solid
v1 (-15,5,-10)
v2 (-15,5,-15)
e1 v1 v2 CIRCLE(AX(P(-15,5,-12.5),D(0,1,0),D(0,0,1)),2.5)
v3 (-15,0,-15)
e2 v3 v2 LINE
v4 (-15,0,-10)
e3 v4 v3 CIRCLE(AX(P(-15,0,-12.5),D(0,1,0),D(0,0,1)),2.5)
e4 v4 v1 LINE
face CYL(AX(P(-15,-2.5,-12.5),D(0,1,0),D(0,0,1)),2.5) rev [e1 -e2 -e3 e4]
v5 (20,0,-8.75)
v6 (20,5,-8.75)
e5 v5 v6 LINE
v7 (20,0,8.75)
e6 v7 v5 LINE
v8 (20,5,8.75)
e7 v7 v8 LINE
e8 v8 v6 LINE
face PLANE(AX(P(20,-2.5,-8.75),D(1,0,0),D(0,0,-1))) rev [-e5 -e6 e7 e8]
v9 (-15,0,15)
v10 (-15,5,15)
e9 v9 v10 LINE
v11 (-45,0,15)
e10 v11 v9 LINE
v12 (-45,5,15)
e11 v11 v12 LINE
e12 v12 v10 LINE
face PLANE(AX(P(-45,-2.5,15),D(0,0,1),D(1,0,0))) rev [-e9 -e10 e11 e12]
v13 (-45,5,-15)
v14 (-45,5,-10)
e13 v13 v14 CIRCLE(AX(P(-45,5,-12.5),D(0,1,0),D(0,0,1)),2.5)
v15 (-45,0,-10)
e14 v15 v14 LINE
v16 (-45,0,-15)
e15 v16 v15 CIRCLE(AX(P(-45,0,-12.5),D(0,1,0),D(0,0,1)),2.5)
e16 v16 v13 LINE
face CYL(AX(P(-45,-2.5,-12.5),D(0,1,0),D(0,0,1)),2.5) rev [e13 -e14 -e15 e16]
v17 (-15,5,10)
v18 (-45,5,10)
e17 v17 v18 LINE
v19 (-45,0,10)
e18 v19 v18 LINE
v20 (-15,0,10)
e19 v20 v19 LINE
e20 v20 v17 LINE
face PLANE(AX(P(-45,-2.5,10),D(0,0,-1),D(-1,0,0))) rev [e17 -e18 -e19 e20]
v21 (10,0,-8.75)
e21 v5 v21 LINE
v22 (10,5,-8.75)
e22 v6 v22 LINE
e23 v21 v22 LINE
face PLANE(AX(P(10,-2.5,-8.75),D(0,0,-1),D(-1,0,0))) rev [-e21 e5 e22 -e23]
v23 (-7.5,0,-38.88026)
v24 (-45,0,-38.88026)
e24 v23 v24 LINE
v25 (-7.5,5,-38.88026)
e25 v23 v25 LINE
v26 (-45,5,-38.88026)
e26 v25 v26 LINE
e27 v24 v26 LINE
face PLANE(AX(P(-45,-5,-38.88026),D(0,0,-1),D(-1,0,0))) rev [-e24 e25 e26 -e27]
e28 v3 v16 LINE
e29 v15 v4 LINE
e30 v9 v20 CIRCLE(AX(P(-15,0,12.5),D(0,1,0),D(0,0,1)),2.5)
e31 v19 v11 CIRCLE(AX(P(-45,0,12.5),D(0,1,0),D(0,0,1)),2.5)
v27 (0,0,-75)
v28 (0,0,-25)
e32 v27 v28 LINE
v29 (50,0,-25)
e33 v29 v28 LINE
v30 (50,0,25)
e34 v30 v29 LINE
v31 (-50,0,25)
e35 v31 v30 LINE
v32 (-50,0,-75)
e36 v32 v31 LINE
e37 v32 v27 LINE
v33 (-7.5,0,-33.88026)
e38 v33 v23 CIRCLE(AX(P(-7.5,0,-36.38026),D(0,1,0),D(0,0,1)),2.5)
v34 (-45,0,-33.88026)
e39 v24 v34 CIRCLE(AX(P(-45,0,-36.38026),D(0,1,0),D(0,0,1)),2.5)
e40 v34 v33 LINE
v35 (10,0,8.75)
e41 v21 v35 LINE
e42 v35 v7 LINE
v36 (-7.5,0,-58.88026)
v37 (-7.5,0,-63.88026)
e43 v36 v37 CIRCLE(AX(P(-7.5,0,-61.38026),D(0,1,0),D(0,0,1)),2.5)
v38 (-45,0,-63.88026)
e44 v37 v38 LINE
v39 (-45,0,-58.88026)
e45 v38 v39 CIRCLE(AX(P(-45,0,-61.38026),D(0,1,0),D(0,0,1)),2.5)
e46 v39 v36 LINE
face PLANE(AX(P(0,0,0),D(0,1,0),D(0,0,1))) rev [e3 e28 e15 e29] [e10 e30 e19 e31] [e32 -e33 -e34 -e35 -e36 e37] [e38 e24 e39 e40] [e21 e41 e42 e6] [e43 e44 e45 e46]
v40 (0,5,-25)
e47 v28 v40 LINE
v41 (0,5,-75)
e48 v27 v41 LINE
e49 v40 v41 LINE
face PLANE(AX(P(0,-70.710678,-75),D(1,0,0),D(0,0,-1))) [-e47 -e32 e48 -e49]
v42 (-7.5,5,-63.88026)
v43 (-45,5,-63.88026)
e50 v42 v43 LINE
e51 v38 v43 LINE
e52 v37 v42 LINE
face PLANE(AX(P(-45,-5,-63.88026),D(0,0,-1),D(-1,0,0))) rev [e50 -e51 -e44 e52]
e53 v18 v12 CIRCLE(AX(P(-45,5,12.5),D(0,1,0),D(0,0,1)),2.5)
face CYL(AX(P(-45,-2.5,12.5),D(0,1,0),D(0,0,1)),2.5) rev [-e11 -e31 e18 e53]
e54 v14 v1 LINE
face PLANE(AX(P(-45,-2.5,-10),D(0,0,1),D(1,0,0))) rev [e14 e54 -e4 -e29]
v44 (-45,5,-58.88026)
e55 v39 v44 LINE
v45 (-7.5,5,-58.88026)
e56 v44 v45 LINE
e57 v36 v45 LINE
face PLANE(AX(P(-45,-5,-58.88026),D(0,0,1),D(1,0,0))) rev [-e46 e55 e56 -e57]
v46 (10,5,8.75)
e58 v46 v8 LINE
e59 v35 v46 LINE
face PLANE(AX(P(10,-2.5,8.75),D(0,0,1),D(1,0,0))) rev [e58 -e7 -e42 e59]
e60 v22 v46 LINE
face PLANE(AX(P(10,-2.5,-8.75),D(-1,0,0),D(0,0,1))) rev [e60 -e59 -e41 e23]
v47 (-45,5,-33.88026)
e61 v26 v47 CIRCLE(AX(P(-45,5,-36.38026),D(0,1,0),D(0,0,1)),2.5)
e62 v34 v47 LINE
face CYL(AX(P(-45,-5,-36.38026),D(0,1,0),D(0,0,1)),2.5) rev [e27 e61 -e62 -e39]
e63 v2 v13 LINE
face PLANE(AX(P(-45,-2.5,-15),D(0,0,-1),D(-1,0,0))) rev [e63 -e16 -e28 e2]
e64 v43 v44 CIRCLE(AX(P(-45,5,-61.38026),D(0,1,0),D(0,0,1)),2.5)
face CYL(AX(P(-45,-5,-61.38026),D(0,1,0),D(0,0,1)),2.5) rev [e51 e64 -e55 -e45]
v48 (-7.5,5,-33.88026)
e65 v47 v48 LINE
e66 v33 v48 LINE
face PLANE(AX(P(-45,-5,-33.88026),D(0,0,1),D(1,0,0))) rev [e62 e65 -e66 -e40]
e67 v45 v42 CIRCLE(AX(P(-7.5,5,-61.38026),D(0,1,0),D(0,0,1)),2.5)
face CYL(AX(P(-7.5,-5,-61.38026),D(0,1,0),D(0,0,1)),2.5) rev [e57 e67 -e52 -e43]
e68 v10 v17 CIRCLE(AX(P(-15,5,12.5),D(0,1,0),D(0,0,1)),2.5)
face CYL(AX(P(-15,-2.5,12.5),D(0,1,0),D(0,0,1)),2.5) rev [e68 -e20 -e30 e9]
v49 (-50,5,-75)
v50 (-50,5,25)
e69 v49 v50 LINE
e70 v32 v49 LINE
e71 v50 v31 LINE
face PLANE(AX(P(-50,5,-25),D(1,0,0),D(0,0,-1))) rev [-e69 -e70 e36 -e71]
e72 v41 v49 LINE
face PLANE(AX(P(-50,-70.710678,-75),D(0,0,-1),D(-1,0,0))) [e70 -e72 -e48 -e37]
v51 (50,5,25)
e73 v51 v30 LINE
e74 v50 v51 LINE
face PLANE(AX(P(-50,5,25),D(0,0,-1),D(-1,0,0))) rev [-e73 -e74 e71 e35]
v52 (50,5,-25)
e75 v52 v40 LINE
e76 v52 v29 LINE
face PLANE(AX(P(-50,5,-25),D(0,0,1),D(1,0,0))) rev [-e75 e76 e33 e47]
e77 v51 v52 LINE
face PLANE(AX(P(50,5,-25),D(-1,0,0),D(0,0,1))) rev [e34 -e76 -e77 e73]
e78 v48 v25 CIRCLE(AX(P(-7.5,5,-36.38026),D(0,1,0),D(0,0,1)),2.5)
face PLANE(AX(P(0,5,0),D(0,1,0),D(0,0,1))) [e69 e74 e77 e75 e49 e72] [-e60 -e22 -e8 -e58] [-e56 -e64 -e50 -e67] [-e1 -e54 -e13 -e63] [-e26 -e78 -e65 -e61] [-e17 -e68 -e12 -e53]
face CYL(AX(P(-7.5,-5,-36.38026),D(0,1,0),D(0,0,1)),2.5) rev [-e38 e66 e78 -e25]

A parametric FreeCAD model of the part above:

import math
import FreeCAD as App
import Part
import Sketcher

V = App.Vector

doc = App.newDocument("Part")
body = doc.addObject("PartDesign::Body", "Body")

# Sketch on XZ plane
sketch1 = body.newObject("Sketcher::SketchObject", "Sketch")
sketch1.AttachmentSupport = (doc.getObject("XZ_Plane"), [""])
sketch1.MapMode = "FlatFace"
sketch1.addGeometry(Part.LineSegment(V(-50, -25, 0), V(-50, 25, 0)), False)
sketch1.addGeometry(Part.LineSegment(V(-50, 25, 0), V(50, 25, 0)), False)
sketch1.addGeometry(Part.LineSegment(V(50, 25, 0), V(50, -25, 0)), False)
sketch1.addGeometry(Part.LineSegment(V(50, -25, 0), V(-50, -25, 0)), False)
sketch1.addConstraint(Sketcher.Constraint("Coincident", 0, 2, 1, 1))
sketch1.addConstraint(Sketcher.Constraint("Coincident", 1, 2, 2, 1))
sketch1.addConstraint(Sketcher.Constraint("Coincident", 2, 2, 3, 1))
sketch1.addConstraint(Sketcher.Constraint("Coincident", 3, 2, 0, 1))
sketch1.addConstraint(Sketcher.Constraint("Vertical", 0))
sketch1.addConstraint(Sketcher.Constraint("Horizontal", 1))
sketch1.addConstraint(Sketcher.Constraint("Vertical", 2))
sketch1.addConstraint(Sketcher.Constraint("Horizontal", 3))
sketch1.addConstraint(Sketcher.Constraint("Symmetric", 0, 2, 2, 2, -1, 1))
sketch1.addConstraint(Sketcher.Constraint("DistanceX", 1, 1, 1, 2, 100.0))
sketch1.addConstraint(Sketcher.Constraint("DistanceY", 0, 1, 0, 2, 50.0))
pad1 = body.newObject("PartDesign::Pad", "Pad")
pad1.Profile = sketch1
pad1.Length = 5
pad1.Reversed = True

# Sketch on XZ plane
sketch2 = body.newObject("Sketcher::SketchObject", "Sketch001")
sketch2.AttachmentSupport = (doc.getObject("XZ_Plane"), [""])
sketch2.MapMode = "FlatFace"
sketch2.AttachmentOffset = App.Placement(V(0, 0, -5), App.Rotation())
sketch2.addGeometry(Part.LineSegment(V(10, -8.75, 0), V(10, 8.75, 0)), False)
sketch2.addGeometry(Part.LineSegment(V(10, 8.75, 0), V(20, 8.75, 0)), False)
sketch2.addGeometry(Part.LineSegment(V(20, 8.75, 0), V(20, -8.75, 0)), False)
sketch2.addGeometry(Part.LineSegment(V(20, -8.75, 0), V(10, -8.75, 0)), False)
sketch2.addConstraint(Sketcher.Constraint("Coincident", 0, 2, 1, 1))
sketch2.addConstraint(Sketcher.Constraint("Coincident", 1, 2, 2, 1))
sketch2.addConstraint(Sketcher.Constraint("Coincident", 2, 2, 3, 1))
sketch2.addConstraint(Sketcher.Constraint("Coincident", 3, 2, 0, 1))
sketch2.addConstraint(Sketcher.Constraint("Vertical", 0))
sketch2.addConstraint(Sketcher.Constraint("Horizontal", 1))
sketch2.addConstraint(Sketcher.Constraint("Vertical", 2))
sketch2.addConstraint(Sketcher.Constraint("Horizontal", 3))
sketch2.addConstraint(Sketcher.Constraint("DistanceX", 1, 1, 1, 2, 10.0))
sketch2.addConstraint(Sketcher.Constraint("DistanceY", 0, 1, 0, 2, 17.5))
sketch2.addConstraint(Sketcher.Constraint("DistanceX", -1, 1, 0, 2, 10.0))
sketch2.addConstraint(Sketcher.Constraint("DistanceY", -1, 1, 0, 2, 8.75))
pocket1 = body.newObject("PartDesign::Pocket", "Pocket")
pocket1.Profile = sketch2
pocket1.Length = 7.5
pocket1.Reversed = True

# Sketch on XZ plane
sketch3 = body.newObject("Sketcher::SketchObject", "Sketch002")
sketch3.AttachmentSupport = (doc.getObject("XZ_Plane"), [""])
sketch3.MapMode = "FlatFace"
sketch3.AttachmentOffset = App.Placement(V(0, 0, -5), App.Rotation())
sketch3.addGeometry(Part.LineSegment(V(-15, -15, 0), V(-45, -15, 0)), False)
sketch3.addGeometry(Part.ArcOfCircle(Part.Circle(V(-45, -12.5, 0), V(0, 0, 1), 2.5), math.radians(90), math.radians(270)), False)
sketch3.addGeometry(Part.LineSegment(V(-45, -10, 0), V(-15, -10, 0)), False)
sketch3.addGeometry(Part.ArcOfCircle(Part.Circle(V(-15, -12.5, 0), V(0, 0, 1), 2.5), math.radians(-90), math.radians(90)), False)
sketch3.addGeometry(Part.LineSegment(V(-45, 15, 0), V(-15, 15, 0)), False)
sketch3.addGeometry(Part.ArcOfCircle(Part.Circle(V(-15, 12.5, 0), V(0, 0, 1), 2.5), math.radians(-90), math.radians(90)), False)
sketch3.addGeometry(Part.LineSegment(V(-15, 10, 0), V(-45, 10, 0)), False)
sketch3.addGeometry(Part.ArcOfCircle(Part.Circle(V(-45, 12.5, 0), V(0, 0, 1), 2.5), math.radians(90), math.radians(270)), False)
sketch3.addConstraint(Sketcher.Constraint("Tangent", 0, 2, 1, 2))
sketch3.addConstraint(Sketcher.Constraint("Tangent", 1, 1, 2, 1))
sketch3.addConstraint(Sketcher.Constraint("Tangent", 2, 2, 3, 2))
sketch3.addConstraint(Sketcher.Constraint("Tangent", 3, 1, 0, 1))
sketch3.addConstraint(Sketcher.Constraint("Tangent", 4, 2, 5, 2))
sketch3.addConstraint(Sketcher.Constraint("Tangent", 5, 1, 6, 1))
sketch3.addConstraint(Sketcher.Constraint("Tangent", 6, 2, 7, 2))
sketch3.addConstraint(Sketcher.Constraint("Tangent", 7, 1, 4, 1))
sketch3.addConstraint(Sketcher.Constraint("Horizontal", 0))
sketch3.addConstraint(Sketcher.Constraint("Horizontal", 2))
sketch3.addConstraint(Sketcher.Constraint("Horizontal", 4))
sketch3.addConstraint(Sketcher.Constraint("Horizontal", 6))
sketch3.addConstraint(Sketcher.Constraint("Equal", 3, 5))
sketch3.addConstraint(Sketcher.Constraint("Symmetric", 3, 3, 5, 3, -1))
sketch3.addConstraint(Sketcher.Constraint("Vertical", 1, 3, 7, 3))
sketch3.addConstraint(Sketcher.Constraint("Radius", 1, 2.5))
sketch3.addConstraint(Sketcher.Constraint("DistanceX", 0, 2, 0, 1, 30.0))
sketch3.addConstraint(Sketcher.Constraint("DistanceX", 1, 3, -1, 1, 45.0))
sketch3.addConstraint(Sketcher.Constraint("DistanceY", 0, 2, -1, 1, 15.0))
pocket2 = body.newObject("PartDesign::Pocket", "Pocket001")
pocket2.Profile = sketch3
pocket2.Length = 7.5
pocket2.Reversed = True

# Sketch on XZ plane
sketch4 = body.newObject("Sketcher::SketchObject", "Sketch003")
sketch4.AttachmentSupport = (doc.getObject("XZ_Plane"), [""])
sketch4.MapMode = "FlatFace"
sketch4.AttachmentOffset = App.Placement(V(0, 0, -5), App.Rotation())
sketch4.addGeometry(Part.LineSegment(V(-50, -75, 0), V(-50, -25, 0)), False)
sketch4.addGeometry(Part.LineSegment(V(-50, -25, 0), V(0, -25, 0)), False)
sketch4.addGeometry(Part.LineSegment(V(0, -25, 0), V(0, -75, 0)), False)
sketch4.addGeometry(Part.LineSegment(V(0, -75, 0), V(-50, -75, 0)), False)
sketch4.addConstraint(Sketcher.Constraint("Coincident", 0, 2, 1, 1))
sketch4.addConstraint(Sketcher.Constraint("Coincident", 1, 2, 2, 1))
sketch4.addConstraint(Sketcher.Constraint("Coincident", 2, 2, 3, 1))
sketch4.addConstraint(Sketcher.Constraint("Coincident", 3, 2, 0, 1))
sketch4.addConstraint(Sketcher.Constraint("Vertical", 0))
sketch4.addConstraint(Sketcher.Constraint("Horizontal", 1))
sketch4.addConstraint(Sketcher.Constraint("Vertical", 2))
sketch4.addConstraint(Sketcher.Constraint("Horizontal", 3))
sketch4.addConstraint(Sketcher.Constraint("PointOnObject", 1, 2, -2))
sketch4.addConstraint(Sketcher.Constraint("Equal", 3, 0))
sketch4.addConstraint(Sketcher.Constraint("DistanceX", 1, 1, 1, 2, 50.0))
sketch4.addConstraint(Sketcher.Constraint("DistanceY", 0, 2, -1, 1, 25.0))
pad2 = body.newObject("PartDesign::Pad", "Pad001")
pad2.Profile = sketch4
pad2.Length = 5

# Sketch on XZ plane
sketch5 = body.newObject("Sketcher::SketchObject", "Sketch004")
sketch5.AttachmentSupport = (doc.getObject("XZ_Plane"), [""])
sketch5.MapMode = "FlatFace"
sketch5.AttachmentOffset = App.Placement(V(0, 0, -5), App.Rotation())
sketch5.addGeometry(Part.LineSegment(V(-7.5, -38.88026, 0), V(-45, -38.88026, 0)), False)
sketch5.addGeometry(Part.ArcOfCircle(Part.Circle(V(-45, -36.38026, 0), V(0, 0, 1), 2.5), math.radians(90), math.radians(270)), False)
sketch5.addGeometry(Part.LineSegment(V(-45, -33.88026, 0), V(-7.5, -33.88026, 0)), False)
sketch5.addGeometry(Part.ArcOfCircle(Part.Circle(V(-7.5, -36.38026, 0), V(0, 0, 1), 2.5), math.radians(-90), math.radians(90)), False)
sketch5.addConstraint(Sketcher.Constraint("Tangent", 0, 2, 1, 2))
sketch5.addConstraint(Sketcher.Constraint("Tangent", 1, 1, 2, 1))
sketch5.addConstraint(Sketcher.Constraint("Tangent", 2, 2, 3, 2))
sketch5.addConstraint(Sketcher.Constraint("Tangent", 3, 1, 0, 1))
sketch5.addConstraint(Sketcher.Constraint("Horizontal", 0))
sketch5.addConstraint(Sketcher.Constraint("Horizontal", 2))
sketch5.addConstraint(Sketcher.Constraint("Radius", 1, 2.5))
sketch5.addConstraint(Sketcher.Constraint("DistanceX", 0, 2, 0, 1, 37.5))
sketch5.addConstraint(Sketcher.Constraint("DistanceX", 1, 3, -1, 1, 45.0))
sketch5.addConstraint(Sketcher.Constraint("DistanceY", 1, 3, -1, 1, 36.38026))
pocket3 = body.newObject("PartDesign::Pocket", "Pocket002")
pocket3.Profile = sketch5
pocket3.Length = 10
pocket3.Reversed = True
doc.recompute()

linearpattern = body.newObject("PartDesign::LinearPattern", "LinearPattern")
linearpattern.Originals = [pocket3]
linearpattern.Direction = (doc.getObject("Z_Axis"), [""])
linearpattern.Mode = "offset"
linearpattern.Offset = 25
linearpattern.Occurrences = 2
linearpattern.Reversed = True
body.Tip = linearpattern

doc.recompute()
